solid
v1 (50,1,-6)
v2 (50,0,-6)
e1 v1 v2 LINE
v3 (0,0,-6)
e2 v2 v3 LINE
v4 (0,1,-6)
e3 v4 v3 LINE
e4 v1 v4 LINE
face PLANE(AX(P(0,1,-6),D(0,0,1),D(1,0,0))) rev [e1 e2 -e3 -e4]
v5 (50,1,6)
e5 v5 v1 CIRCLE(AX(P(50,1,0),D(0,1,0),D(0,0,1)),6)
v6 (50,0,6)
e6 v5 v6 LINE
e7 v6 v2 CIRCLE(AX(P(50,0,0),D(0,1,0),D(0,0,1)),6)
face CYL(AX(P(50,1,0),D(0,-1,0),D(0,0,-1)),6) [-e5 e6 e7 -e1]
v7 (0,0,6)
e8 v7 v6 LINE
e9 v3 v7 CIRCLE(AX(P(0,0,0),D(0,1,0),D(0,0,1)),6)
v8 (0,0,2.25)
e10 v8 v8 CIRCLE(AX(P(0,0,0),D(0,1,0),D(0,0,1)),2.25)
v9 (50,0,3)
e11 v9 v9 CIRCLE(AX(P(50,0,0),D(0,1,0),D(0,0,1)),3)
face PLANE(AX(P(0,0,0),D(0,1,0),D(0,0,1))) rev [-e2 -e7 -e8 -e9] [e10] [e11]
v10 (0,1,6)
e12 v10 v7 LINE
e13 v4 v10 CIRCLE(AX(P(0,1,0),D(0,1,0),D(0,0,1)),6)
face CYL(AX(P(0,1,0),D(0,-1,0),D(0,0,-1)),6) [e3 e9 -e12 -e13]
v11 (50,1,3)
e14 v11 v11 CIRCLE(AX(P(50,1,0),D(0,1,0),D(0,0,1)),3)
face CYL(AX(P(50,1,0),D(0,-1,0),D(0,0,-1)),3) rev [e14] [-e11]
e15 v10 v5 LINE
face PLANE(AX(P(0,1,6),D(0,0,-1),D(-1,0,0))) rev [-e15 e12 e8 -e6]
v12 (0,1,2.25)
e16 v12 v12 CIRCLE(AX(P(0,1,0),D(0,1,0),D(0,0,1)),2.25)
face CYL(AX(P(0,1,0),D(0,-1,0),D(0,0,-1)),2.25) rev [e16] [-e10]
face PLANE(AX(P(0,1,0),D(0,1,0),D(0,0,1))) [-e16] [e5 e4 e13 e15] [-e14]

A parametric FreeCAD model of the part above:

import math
import FreeCAD as App
import Part
import Sketcher

doc = App.newDocument("Part")
body = doc.addObject("PartDesign::Body", "Body")

# Sketch on XZ plane
sketch1 = body.newObject("Sketcher::SketchObject", "Sketch")
sketch1.AttachmentSupport = (doc.getObject("XZ_Plane"), [""])
sketch1.MapMode = "FlatFace"
sketch1.addGeometry(Part.LineSegment(App.Vector(50, -6, 0), App.Vector(0, -6, 0)), False)
sketch1.addGeometry(Part.ArcOfCircle(Part.Circle(App.Vector(0, 0, 0), App.Vector(0, 0, 1), 6), math.radians(90), math.radians(270)), False)
sketch1.addGeometry(Part.LineSegment(App.Vector(0, 6, 0), App.Vector(50, 6, 0)), False)
sketch1.addGeometry(Part.ArcOfCircle(Part.Circle(App.Vector(50, 0, 0), App.Vector(0, 0, 1), 6), math.radians(-90), math.radians(90)), False)
sketch1.addGeometry(Part.Circle(App.Vector(50, 0, 0), App.Vector(0, 0, 1), 3), False)
sketch1.addGeometry(Part.Circle(App.Vector(0, 0, 0), App.Vector(0, 0, 1), 2.2), False)
sketch1.addConstraint(Sketcher.Constraint("Tangent", 0, 2, 1, 2))
sketch1.addConstraint(Sketcher.Constraint("Tangent", 1, 1, 2, 1))
sketch1.addConstraint(Sketcher.Constraint("Tangent", 2, 2, 3, 2))
sketch1.addConstraint(Sketcher.Constraint("Tangent", 3, 1, 0, 1))
sketch1.addConstraint(Sketcher.Constraint("Horizontal", 0))
sketch1.addConstraint(Sketcher.Constraint("Horizontal", 2))
sketch1.addConstraint(Sketcher.Constraint("Coincident", 1, 3, -1, 1))
sketch1.addConstraint(Sketcher.Constraint("Coincident", 5, 3, -1, 1))
sketch1.addConstraint(Sketcher.Constraint("Coincident", 4, 3, 3, 3))
sketch1.addConstraint(Sketcher.Constraint("Diameter", 4, 6.0))
sketch1.addConstraint(Sketcher.Constraint("Radius", 1, 6.0))
sketch1.addConstraint(Sketcher.Constraint("Diameter", 5, 4.5))
sketch1.addConstraint(Sketcher.Constraint("DistanceX", 0, 2, 0, 1, 50.0))
pad1 = body.newObject("PartDesign::Pad", "Pad")
pad1.Profile = sketch1
pad1.Length = 1
pad1.Reversed = True

doc.recompute()
